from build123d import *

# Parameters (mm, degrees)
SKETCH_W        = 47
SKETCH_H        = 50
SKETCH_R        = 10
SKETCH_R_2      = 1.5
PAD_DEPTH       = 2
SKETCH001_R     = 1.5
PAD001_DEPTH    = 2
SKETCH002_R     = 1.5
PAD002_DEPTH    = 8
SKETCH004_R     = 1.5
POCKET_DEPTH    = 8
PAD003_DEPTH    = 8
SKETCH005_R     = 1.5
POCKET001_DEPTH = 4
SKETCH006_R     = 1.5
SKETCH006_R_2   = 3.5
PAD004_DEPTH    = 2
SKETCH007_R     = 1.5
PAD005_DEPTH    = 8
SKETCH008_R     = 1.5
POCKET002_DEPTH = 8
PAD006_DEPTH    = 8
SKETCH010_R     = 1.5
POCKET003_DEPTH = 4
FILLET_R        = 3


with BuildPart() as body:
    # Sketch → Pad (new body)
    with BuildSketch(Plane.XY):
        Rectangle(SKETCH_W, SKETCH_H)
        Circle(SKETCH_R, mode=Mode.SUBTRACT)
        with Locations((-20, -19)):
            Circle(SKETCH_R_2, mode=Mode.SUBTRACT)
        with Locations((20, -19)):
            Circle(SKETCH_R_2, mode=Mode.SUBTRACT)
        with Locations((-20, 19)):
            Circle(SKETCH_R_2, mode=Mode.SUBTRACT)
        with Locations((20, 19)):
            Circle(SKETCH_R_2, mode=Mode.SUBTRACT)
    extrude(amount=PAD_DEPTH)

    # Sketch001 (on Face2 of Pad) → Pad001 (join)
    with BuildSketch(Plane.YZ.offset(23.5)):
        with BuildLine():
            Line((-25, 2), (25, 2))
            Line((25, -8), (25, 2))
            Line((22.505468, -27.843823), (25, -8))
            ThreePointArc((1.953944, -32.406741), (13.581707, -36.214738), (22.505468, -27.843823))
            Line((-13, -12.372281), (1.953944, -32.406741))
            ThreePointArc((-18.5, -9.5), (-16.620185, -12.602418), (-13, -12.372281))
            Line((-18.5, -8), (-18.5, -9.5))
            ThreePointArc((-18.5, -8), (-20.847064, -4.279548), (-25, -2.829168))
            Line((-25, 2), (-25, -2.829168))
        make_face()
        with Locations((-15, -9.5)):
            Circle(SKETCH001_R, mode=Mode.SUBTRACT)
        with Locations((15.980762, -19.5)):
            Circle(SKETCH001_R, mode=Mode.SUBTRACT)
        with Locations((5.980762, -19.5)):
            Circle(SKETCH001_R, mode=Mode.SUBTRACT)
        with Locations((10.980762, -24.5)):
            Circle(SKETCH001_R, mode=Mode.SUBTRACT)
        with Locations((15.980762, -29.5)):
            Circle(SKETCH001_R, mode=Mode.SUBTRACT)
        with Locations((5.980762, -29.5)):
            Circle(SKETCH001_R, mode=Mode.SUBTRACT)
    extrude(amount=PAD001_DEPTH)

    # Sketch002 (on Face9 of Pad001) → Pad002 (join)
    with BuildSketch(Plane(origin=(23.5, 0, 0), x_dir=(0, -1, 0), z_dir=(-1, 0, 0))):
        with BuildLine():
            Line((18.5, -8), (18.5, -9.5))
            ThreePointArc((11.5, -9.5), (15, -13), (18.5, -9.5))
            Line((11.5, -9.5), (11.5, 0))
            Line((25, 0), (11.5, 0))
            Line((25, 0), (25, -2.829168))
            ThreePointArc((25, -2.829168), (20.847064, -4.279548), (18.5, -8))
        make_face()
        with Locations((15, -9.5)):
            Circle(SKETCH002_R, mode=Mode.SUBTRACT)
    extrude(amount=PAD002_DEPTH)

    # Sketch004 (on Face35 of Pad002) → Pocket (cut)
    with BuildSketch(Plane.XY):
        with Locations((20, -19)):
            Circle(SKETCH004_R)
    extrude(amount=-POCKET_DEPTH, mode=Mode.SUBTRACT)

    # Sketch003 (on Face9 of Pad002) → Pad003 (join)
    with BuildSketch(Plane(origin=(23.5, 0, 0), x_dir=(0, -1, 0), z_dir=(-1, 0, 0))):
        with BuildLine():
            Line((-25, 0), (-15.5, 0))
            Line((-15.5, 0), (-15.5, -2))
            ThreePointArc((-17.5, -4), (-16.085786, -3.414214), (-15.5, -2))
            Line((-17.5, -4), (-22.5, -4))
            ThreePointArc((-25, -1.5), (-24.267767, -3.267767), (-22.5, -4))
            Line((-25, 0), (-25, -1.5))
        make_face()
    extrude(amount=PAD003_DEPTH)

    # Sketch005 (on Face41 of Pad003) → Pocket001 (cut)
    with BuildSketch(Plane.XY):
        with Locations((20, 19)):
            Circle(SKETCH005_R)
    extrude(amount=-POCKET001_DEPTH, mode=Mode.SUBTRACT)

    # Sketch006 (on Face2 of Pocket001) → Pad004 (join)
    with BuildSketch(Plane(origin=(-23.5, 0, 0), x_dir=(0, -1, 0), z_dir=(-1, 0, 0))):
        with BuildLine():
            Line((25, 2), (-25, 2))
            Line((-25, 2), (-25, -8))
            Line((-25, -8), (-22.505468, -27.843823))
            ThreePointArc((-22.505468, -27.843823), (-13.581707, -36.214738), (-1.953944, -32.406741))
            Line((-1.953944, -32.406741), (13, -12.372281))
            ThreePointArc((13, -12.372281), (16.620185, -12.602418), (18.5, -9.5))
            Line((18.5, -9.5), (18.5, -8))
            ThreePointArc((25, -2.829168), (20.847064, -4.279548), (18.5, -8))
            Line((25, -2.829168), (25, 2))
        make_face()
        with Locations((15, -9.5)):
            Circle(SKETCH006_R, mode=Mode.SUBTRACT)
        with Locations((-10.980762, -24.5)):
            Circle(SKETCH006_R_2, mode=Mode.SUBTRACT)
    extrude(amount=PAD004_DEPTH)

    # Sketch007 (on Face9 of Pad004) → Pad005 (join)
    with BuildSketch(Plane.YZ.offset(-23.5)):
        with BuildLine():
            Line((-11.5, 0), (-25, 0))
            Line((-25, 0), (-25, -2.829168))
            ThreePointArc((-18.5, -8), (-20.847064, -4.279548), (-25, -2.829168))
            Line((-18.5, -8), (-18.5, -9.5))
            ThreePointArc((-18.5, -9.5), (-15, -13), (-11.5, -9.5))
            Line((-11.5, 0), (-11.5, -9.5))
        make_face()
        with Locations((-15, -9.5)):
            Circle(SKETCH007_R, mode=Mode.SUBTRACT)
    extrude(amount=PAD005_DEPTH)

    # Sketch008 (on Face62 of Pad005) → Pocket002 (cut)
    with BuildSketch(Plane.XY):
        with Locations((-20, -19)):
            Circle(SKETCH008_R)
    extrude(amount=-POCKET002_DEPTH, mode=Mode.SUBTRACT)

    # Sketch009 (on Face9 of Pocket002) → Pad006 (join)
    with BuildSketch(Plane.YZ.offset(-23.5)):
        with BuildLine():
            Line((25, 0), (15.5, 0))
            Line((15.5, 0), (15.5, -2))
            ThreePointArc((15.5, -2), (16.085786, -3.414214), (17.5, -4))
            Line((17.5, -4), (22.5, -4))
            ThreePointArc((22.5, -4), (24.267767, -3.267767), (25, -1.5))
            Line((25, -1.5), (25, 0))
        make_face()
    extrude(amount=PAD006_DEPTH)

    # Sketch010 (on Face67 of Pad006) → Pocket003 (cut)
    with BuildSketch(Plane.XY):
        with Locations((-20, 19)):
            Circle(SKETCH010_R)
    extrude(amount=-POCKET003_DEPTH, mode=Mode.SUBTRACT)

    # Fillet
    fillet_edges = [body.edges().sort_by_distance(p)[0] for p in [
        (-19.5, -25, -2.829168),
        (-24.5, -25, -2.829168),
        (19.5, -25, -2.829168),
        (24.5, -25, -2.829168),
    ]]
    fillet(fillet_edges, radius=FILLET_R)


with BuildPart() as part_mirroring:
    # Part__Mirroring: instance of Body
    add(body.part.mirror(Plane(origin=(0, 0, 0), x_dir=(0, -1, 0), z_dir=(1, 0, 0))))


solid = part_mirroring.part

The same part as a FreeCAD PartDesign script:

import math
import FreeCAD as App
import Part
import Sketcher
from FreeCAD import Vector
Q = App.Units.Quantity


def edges_at(feature, points):
    """Names of the edges that pass closest to the given points."""
    edges = feature.Shape.Edges
    near = lambda p: min(range(len(edges)), key=lambda i: edges[i].distToShape(Part.Vertex(*p))[0])
    return sorted({f"Edge{near(p) + 1}" for p in points})

doc = App.newDocument("Part")
params = doc.addObject("Spreadsheet::Sheet", "Params")
for row, (alias, value) in enumerate([
    ("sketch1_diameter", "3 mm"),
    ("sketch1_diameter2", "20 mm"),
    ("sketch1_width", "47 mm"),
    ("sketch1_height", "50 mm"),
    ("pad1_length", "2 mm"),
    ("sketch2_diameter", "3 mm"),
    ("sketch2_radius", "12 mm"),
    ("sketch2_radius2", "3.5 mm"),
    ("sketch2_width", "50 mm"),
    ("sketch2_height", "10 mm"),
    ("pad2_length", "2 mm"),
    ("sketch3_diameter", "3 mm"),
    ("sketch3_radius", "3.5 mm"),
    ("sketch3_width", "13.5 mm"),
    ("sketch3_height", "1.5 mm"),
    ("sketch3_height2", "9.5 mm"),
    ("pad3_length", "8 mm"),
    ("sketch4_diameter", "3 mm"),
    ("pocket1_length", "8 mm"),
    ("sketch5_radius", "1.999999 mm"),
    ("sketch5_radius2", "2.5 mm"),
    ("sketch5_width", "5 mm"),
    ("sketch5_height", "2 mm"),
    ("pad4_length", "8 mm"),
    ("sketch6_diameter", "3 mm"),
    ("pocket2_length", "4 mm"),
    ("sketch7_diameter", "7 mm"),
    ("sketch7_diameter2", "3 mm"),
    ("sketch7_radius", "12 mm"),
    ("sketch7_width", "50 mm"),
    ("sketch7_height", "10 mm"),
    ("pad5_length", "2 mm"),
    ("sketch8_diameter", "3 mm"),
    ("sketch8_radius", "3.5 mm"),
    ("sketch8_width", "13.5 mm"),
    ("sketch8_height", "1.5 mm"),
    ("sketch8_height2", "9.5 mm"),
    ("pad6_length", "8 mm"),
    ("sketch9_diameter", "3 mm"),
    ("pocket3_length", "8 mm"),
    ("sketch10_radius", "1.999999 mm"),
    ("sketch10_radius2", "2.5 mm"),
    ("sketch10_width", "5 mm"),
    ("sketch10_height", "2 mm"),
    ("pad7_length", "8 mm"),
    ("sketch11_diameter", "3 mm"),
    ("pocket4_length", "4 mm"),
    ("fillet_radius", "3 mm"),
], start=1):
    params.set(f"A{row}", alias)
    params.set(f"B{row}", "=" + value)
    params.setAlias(f"B{row}", alias)

body = doc.addObject("PartDesign::Body", "Body")

sketch1 = body.newObject("Sketcher::SketchObject", "Sketch")
sketch1.AttachmentSupport = (doc.getObject("XY_Plane"), [""])
sketch1.MapMode = "FlatFace"
sketch1.addGeometry(Part.LineSegment(Vector(-23.5, 25, 0), Vector(-23.5, -25, 0)), False)
sketch1.addGeometry(Part.LineSegment(Vector(-23.5, -25, 0), Vector(23.5, -25, 0)), False)
sketch1.addGeometry(Part.LineSegment(Vector(23.5, -25, 0), Vector(23.5, 25, 0)), False)
sketch1.addGeometry(Part.LineSegment(Vector(23.5, 25, 0), Vector(-23.5, 25, 0)), False)
sketch1.addGeometry(Part.Circle(Vector(-20, -19, 0), Vector(0, 0, 1), 1.5), False)
sketch1.addGeometry(Part.Circle(Vector(20, -19, 0), Vector(0, 0, 1), 1.5), False)
sketch1.addGeometry(Part.Circle(Vector(-20, 19, 0), Vector(0, 0, 1), 1.5), False)
sketch1.addGeometry(Part.Circle(Vector(0, 0, 0), Vector(0, 0, 1), 10), False)
sketch1.addGeometry(Part.Circle(Vector(20, 19, 0), Vector(0, 0, 1), 1.5), False)
sketch1.addConstraint(Sketcher.Constraint("Coincident", 0, 2, 1, 1))
sketch1.addConstraint(Sketcher.Constraint("Coincident", 1, 2, 2, 1))
sketch1.addConstraint(Sketcher.Constraint("Coincident", 2, 2, 3, 1))
sketch1.addConstraint(Sketcher.Constraint("Coincident", 3, 2, 0, 1))
sketch1.addConstraint(Sketcher.Constraint("Vertical", 0))
sketch1.addConstraint(Sketcher.Constraint("Horizontal", 1))
sketch1.addConstraint(Sketcher.Constraint("Vertical", 2))
sketch1.addConstraint(Sketcher.Constraint("Horizontal", 3))
sketch1.addConstraint(Sketcher.Constraint("Coincident", 7, 3, -1, 1))
sketch1.addConstraint(Sketcher.Constraint("Equal", 4, 5))
sketch1.addConstraint(Sketcher.Constraint("Equal", 5, 6))
sketch1.addConstraint(Sketcher.Constraint("Equal", 6, 8))
sketch1.addConstraint(Sketcher.Constraint("Symmetric", 5, 3, 6, 3, -1, 1))
sketch1.addConstraint(Sketcher.Constraint("Symmetric", 4, 3, 8, 3, -1, 1))
sketch1.addConstraint(Sketcher.Constraint("Symmetric", 0, 2, 2, 2, -1, 1))
sketch1.addConstraint(Sketcher.Constraint("Symmetric", 4, 3, 5, 3, -2))
sketch1.addConstraint(Sketcher.Constraint("Diameter", 4, Q("3 mm")))
sketch1.addConstraint(Sketcher.Constraint("Diameter", 7, Q("20 mm")))
sketch1.addConstraint(Sketcher.Constraint("DistanceX", 1, 1, 1, 2, Q("47 mm")))
sketch1.addConstraint(Sketcher.Constraint("DistanceY", 0, 2, 0, 1, Q("50 mm")))
sketch1.addConstraint(Sketcher.Constraint("DistanceX", 4, 3, -1, 1, Q("20 mm")))
sketch1.addConstraint(Sketcher.Constraint("DistanceY", 4, 3, -1, 1, Q("19 mm")))
sketch1.setExpression("Constraints[16]", "Params.sketch1_diameter")
sketch1.setExpression("Constraints[17]", "Params.sketch1_diameter2")
sketch1.setExpression("Constraints[18]", "Params.sketch1_width")
sketch1.setExpression("Constraints[19]", "Params.sketch1_height")
pad1 = body.newObject("PartDesign::Pad", "Pad")
pad1.Profile = sketch1
pad1.setExpression("Length", "Params.pad1_length")

sketch2 = body.newObject("Sketcher::SketchObject", "Sketch001")
sketch2.AttachmentSupport = (doc.getObject("YZ_Plane"), [""])
sketch2.MapMode = "FlatFace"
sketch2.AttachmentOffset = App.Placement(Vector(0, 0, 23.5), App.Rotation())
sketch2.addGeometry(Part.LineSegment(Vector(25, 2, 0), Vector(-25, 2, 0)), False)
sketch2.addGeometry(Part.LineSegment(Vector(-25, 2, 0), Vector(-25, -2.829168, 0)), False)
sketch2.addGeometry(Part.ArcOfCircle(Part.Circle(Vector(-25.000001, -9.500001, 0), Vector(0, 0, 1), 6.670833), math.radians(12.994623), math.radians(89.999994)), False)
sketch2.addGeometry(Part.LineSegment(Vector(-18.5, -8, 0), Vector(-18.5, -9.5, 0)), False)
sketch2.addGeometry(Part.ArcOfCircle(Part.Circle(Vector(-15, -9.499999, 0), Vector(0, 0, 1), 3.5), math.radians(-179.99999), math.radians(-55.1501)), False)
sketch2.addGeometry(Part.LineSegment(Vector(-13, -12.372281, 0), Vector(1.953944, -32.406741, 0)), False)
sketch2.addGeometry(Part.ArcOfCircle(Part.Circle(Vector(10.980762, -24.5, 0), Vector(0, 0, 1), 12), math.radians(-138.784341), math.radians(-16.179763)), False)
sketch2.addGeometry(Part.LineSegment(Vector(22.505468, -27.843823, 0), Vector(25, -8, 0)), False)
sketch2.addGeometry(Part.LineSegment(Vector(25, -8, 0), Vector(25, 2, 0)), False)
sketch2.addGeometry(Part.Circle(Vector(15.980762, -29.5, 0), Vector(0, 0, 1), 1.5), False)
sketch2.addGeometry(Part.Circle(Vector(5.980762, -29.5, 0), Vector(0, 0, 1), 1.5), False)
sketch2.addGeometry(Part.Circle(Vector(10.980762, -24.5, 0), Vector(0, 0, 1), 1.5), False)
sketch2.addGeometry(Part.Circle(Vector(15.980762, -19.5, 0), Vector(0, 0, 1), 1.5), False)
sketch2.addGeometry(Part.Circle(Vector(5.980762, -19.5, 0), Vector(0, 0, 1), 1.5), False)
sketch2.addGeometry(Part.Circle(Vector(-15, -9.5, 0), Vector(0, 0, 1), 1.5), False)
sketch2.addConstraint(Sketcher.Constraint("Coincident", 0, 2, 1, 1))
sketch2.addConstraint(Sketcher.Constraint("Coincident", 1, 2, 2, 2))
sketch2.addConstraint(Sketcher.Constraint("Coincident", 2, 1, 3, 1))
sketch2.addConstraint(Sketcher.Constraint("Tangent", 3, 2, 4, 1))
sketch2.addConstraint(Sketcher.Constraint("Coincident", 4, 2, 5, 1))
sketch2.addConstraint(Sketcher.Constraint("Coincident", 5, 2, 6, 1))
sketch2.addConstraint(Sketcher.Constraint("Coincident", 6, 2, 7, 1))
sketch2.addConstraint(Sketcher.Constraint("Coincident", 7, 2, 8, 1))
sketch2.addConstraint(Sketcher.Constraint("Coincident", 8, 2, 0, 1))
sketch2.addConstraint(Sketcher.Constraint("Horizontal", 0))
sketch2.addConstraint(Sketcher.Constraint("Vertical", 1))
sketch2.addConstraint(Sketcher.Constraint("Vertical", 3))
sketch2.addConstraint(Sketcher.Constraint("Vertical", 8))
sketch2.addConstraint(Sketcher.Constraint("Coincident", 11, 3, 6, 3))
sketch2.addConstraint(Sketcher.Constraint("Coincident", 14, 3, 4, 3))
sketch2.addConstraint(Sketcher.Constraint("Equal", 9, 10))
sketch2.addConstraint(Sketcher.Constraint("Equal", 10, 11))
sketch2.addConstraint(Sketcher.Constraint("Equal", 11, 12))
sketch2.addConstraint(Sketcher.Constraint("Equal", 12, 13))
sketch2.addConstraint(Sketcher.Constraint("Equal", 13, 14))
sketch2.addConstraint(Sketcher.Constraint("Horizontal", 2, 3, 4, 3))
sketch2.addConstraint(Sketcher.Constraint("Horizontal", 9, 3, 10, 3))
sketch2.addConstraint(Sketcher.Constraint("Horizontal", 12, 3, 13, 3))
sketch2.addConstraint(Sketcher.Constraint("Horizontal", 2, 1, 7, 2))
sketch2.addConstraint(Sketcher.Constraint("Vertical", 9, 3, 12, 3))
sketch2.addConstraint(Sketcher.Constraint("Vertical", 10, 3, 13, 3))
sketch2.addConstraint(Sketcher.Constraint("Vertical", 2, 3, 0, 2))
sketch2.addConstraint(Sketcher.Constraint("Diameter", 9, Q("3 mm")))
sketch2.addConstraint(Sketcher.Constraint("Radius", 6, Q("12 mm")))
sketch2.addConstraint(Sketcher.Constraint("Radius", 4, Q("3.5 mm")))
sketch2.addConstraint(Sketcher.Constraint("DistanceX", 0, 2, 0, 1, Q("50 mm")))
sketch2.addConstraint(Sketcher.Constraint("DistanceY", 8, 1, 8, 2, Q("10 mm")))
sketch2.addConstraint(Sketcher.Constraint("Distance", 5, Q("25.000001 mm")))
sketch2.addConstraint(Sketcher.Constraint("Distance", 7, Q("20 mm")))
sketch2.addConstraint(Sketcher.Constraint("DistanceY", 3, 2, 3, 1, Q("1.5 mm")))
sketch2.addConstraint(Sketcher.Constraint("DistanceX", 2, 3, -1, 1, Q("25.000001 mm")))
sketch2.addConstraint(Sketcher.Constraint("DistanceX", 4, 3, -1, 1, Q("15 mm")))
sketch2.addConstraint(Sketcher.Constraint("DistanceY", -1, 1, 0, 2, Q("2 mm")))
sketch2.addConstraint(Sketcher.Constraint("DistanceX", 4, 2, -1, 1, Q("13 mm")))
sketch2.addConstraint(Sketcher.Constraint("DistanceY", 6, 3, 4, 3, Q("15.000001 mm")))
sketch2.addConstraint(Sketcher.Constraint("DistanceX", 6, 3, 9, 3, Q("5 mm")))
sketch2.addConstraint(Sketcher.Constraint("DistanceY", 9, 3, 6, 3, Q("5 mm")))
sketch2.addConstraint(Sketcher.Constraint("DistanceX", 10, 3, 6, 3, Q("5 mm")))
sketch2.addConstraint(Sketcher.Constraint("DistanceY", 11, 3, 12, 3, Q("5 mm")))
sketch2.addConstraint(Sketcher.Constraint("DistanceY", 5, 2, -1, 1, Q("32.406741 mm")))
sketch2.setExpression("Constraints[27]", "Params.sketch2_diameter")
sketch2.setExpression("Constraints[28]", "Params.sketch2_radius")
sketch2.setExpression("Constraints[29]", "Params.sketch2_radius2")
sketch2.setExpression("Constraints[30]", "Params.sketch2_width")
sketch2.setExpression("Constraints[31]", "Params.sketch2_height")
pad2 = body.newObject("PartDesign::Pad", "Pad001")
pad2.Profile = sketch2
pad2.setExpression("Length", "Params.pad2_length")

sketch3 = body.newObject("Sketcher::SketchObject", "Sketch002")
sketch3.AttachmentSupport = (doc.getObject("YZ_Plane"), [""])
sketch3.MapMode = "FlatFace"
sketch3.AttachmentOffset = App.Placement(Vector(0, 0, 23.5), App.Rotation())
sketch3.addGeometry(Part.LineSegment(Vector(-18.5, -9.5, 0), Vector(-18.5, -8, 0)), False)
sketch3.addGeometry(Part.ArcOfCircle(Part.Circle(Vector(-25.000001, -9.500001, 0), Vector(0, 0, 1), 6.670833), math.radians(12.994623), math.radians(89.999994)), False)
sketch3.addGeometry(Part.LineSegment(Vector(-25, -2.829168, 0), Vector(-25, 0, 0)), False)
sketch3.addGeometry(Part.LineSegment(Vector(-25, 0, 0), Vector(-11.5, 0, 0)), False)
sketch3.addGeometry(Part.LineSegment(Vector(-11.5, 0, 0), Vector(-11.5, -9.5, 0)), False)
sketch3.addGeometry(Part.ArcOfCircle(Part.Circle(Vector(-15, -9.5, 0), Vector(0, 0, 1), 3.5), math.radians(180), math.radians(360)), False)
sketch3.addGeometry(Part.Circle(Vector(-15, -9.5, 0), Vector(0, 0, 1), 1.5), False)
sketch3.addConstraint(Sketcher.Constraint("Coincident", 0, 2, 1, 1))
sketch3.addConstraint(Sketcher.Constraint("Coincident", 1, 2, 2, 1))
sketch3.addConstraint(Sketcher.Constraint("Coincident", 2, 2, 3, 1))
sketch3.addConstraint(Sketcher.Constraint("Coincident", 3, 2, 4, 1))
sketch3.addConstraint(Sketcher.Constraint("Tangent", 4, 2, 5, 2))
sketch3.addConstraint(Sketcher.Constraint("Tangent", 5, 1, 0, 1))
sketch3.addConstraint(Sketcher.Constraint("Vertical", 0))
sketch3.addConstraint(Sketcher.Constraint("Vertical", 2))
sketch3.addConstraint(Sketcher.Constraint("Horizontal", 3))
sketch3.addConstraint(Sketcher.Constraint("Vertical", 4))
sketch3.addConstraint(Sketcher.Constraint("Coincident", 6, 3, 5, 3))
sketch3.addConstraint(Sketcher.Constraint("PointOnObject", 2, 2, -1))
sketch3.addConstraint(Sketcher.Constraint("Horizontal", 1, 3, 5, 3))
sketch3.addConstraint(Sketcher.Constraint("Diameter", 6, Q("3 mm")))
sketch3.addConstraint(Sketcher.Constraint("Radius", 5, Q("3.5 mm")))
sketch3.addConstraint(Sketcher.Constraint("DistanceX", 3, 1, 3, 2, Q("13.5 mm")))
sketch3.addConstraint(Sketcher.Constraint("DistanceY", 0, 1, 0, 2, Q("1.5 mm")))
sketch3.addConstraint(Sketcher.Constraint("DistanceY", 4, 2, 4, 1, Q("9.5 mm")))
sketch3.addConstraint(Sketcher.Constraint("DistanceX", 1, 3, -1, 1, Q("25.000001 mm")))
sketch3.addConstraint(Sketcher.Constraint("DistanceX", 5, 3, -1, 1, Q("15 mm")))
sketch3.setExpression("Constraints[13]", "Params.sketch3_diameter")
sketch3.setExpression("Constraints[14]", "Params.sketch3_radius")
sketch3.setExpression("Constraints[15]", "Params.sketch3_width")
sketch3.setExpression("Constraints[16]", "Params.sketch3_height")
sketch3.setExpression("Constraints[17]", "Params.sketch3_height2")
pad3 = body.newObject("PartDesign::Pad", "Pad002")
pad3.Profile = sketch3
pad3.setExpression("Length", "Params.pad3_length")
pad3.Reversed = True

sketch4 = body.newObject("Sketcher::SketchObject", "Sketch003")
sketch4.AttachmentSupport = (doc.getObject("XY_Plane"), [""])
sketch4.MapMode = "FlatFace"
sketch4.addGeometry(Part.Circle(Vector(20, -19, 0), Vector(0, 0, 1), 1.5), False)
sketch4.addConstraint(Sketcher.Constraint("Diameter", 0, Q("3 mm")))
sketch4.addConstraint(Sketcher.Constraint("DistanceX", -1, 1, 0, 3, Q("20 mm")))
sketch4.addConstraint(Sketcher.Constraint("DistanceY", 0, 3, -1, 1, Q("19 mm")))
sketch4.setExpression("Constraints[0]", "Params.sketch4_diameter")
pocket1 = body.newObject("PartDesign::Pocket", "Pocket")
pocket1.Profile = sketch4
pocket1.setExpression("Length", "Params.pocket1_length")

sketch5 = body.newObject("Sketcher::SketchObject", "Sketch004")
sketch5.AttachmentSupport = (doc.getObject("YZ_Plane"), [""])
sketch5.MapMode = "FlatFace"
sketch5.AttachmentOffset = App.Placement(Vector(0, 0, 23.5), App.Rotation())
sketch5.addGeometry(Part.LineSegment(Vector(15.5, 0, 0), Vector(25, 0, 0)), False)
sketch5.addGeometry(Part.LineSegment(Vector(25, 0, 0), Vector(25, -1.5, 0)), False)
sketch5.addGeometry(Part.ArcOfCircle(Part.Circle(Vector(22.5, -1.5, 0), Vector(0, 0, 1), 2.5), math.radians(-90.000004), math.radians(0.000004)), False)
sketch5.addGeometry(Part.LineSegment(Vector(22.5, -4, 0), Vector(17.5, -4, 0)), False)
sketch5.addGeometry(Part.ArcOfCircle(Part.Circle(Vector(17.499999, -2.000001, 0), Vector(0, 0, 1), 1.999999), math.radians(179.999957), math.radians(270.000043)), False)
sketch5.addGeometry(Part.LineSegment(Vector(15.5, -2, 0), Vector(15.5, 0, 0)), False)
sketch5.addConstraint(Sketcher.Constraint("Coincident", 0, 2, 1, 1))
sketch5.addConstraint(Sketcher.Constraint("Tangent", 1, 2, 2, 2))
sketch5.addConstraint(Sketcher.Constraint("Tangent", 2, 1, 3, 1))
sketch5.addConstraint(Sketcher.Constraint("Tangent", 3, 2, 4, 2))
sketch5.addConstraint(Sketcher.Constraint("Tangent", 4, 1, 5, 1))
sketch5.addConstraint(Sketcher.Constraint("Coincident", 5, 2, 0, 1))
sketch5.addConstraint(Sketcher.Constraint("Horizontal", 0))
sketch5.addConstraint(Sketcher.Constraint("Vertical", 1))
sketch5.addConstraint(Sketcher.Constraint("Horizontal", 3))
sketch5.addConstraint(Sketcher.Constraint("Vertical", 5))
sketch5.addConstraint(Sketcher.Constraint("PointOnObject", 0, 2, -1))
sketch5.addConstraint(Sketcher.Constraint("Radius", 4, Q("1.999999 mm")))
sketch5.addConstraint(Sketcher.Constraint("Radius", 2, Q("2.5 mm")))
sketch5.addConstraint(Sketcher.Constraint("DistanceX", 3, 2, 3, 1, Q("5 mm")))
sketch5.addConstraint(Sketcher.Constraint("DistanceY", 5, 1, 5, 2, Q("2 mm")))
sketch5.addConstraint(Sketcher.Constraint("DistanceX", -1, 1, 0, 2, Q("25 mm")))
sketch5.setExpression("Constraints[11]", "Params.sketch5_radius")
sketch5.setExpression("Constraints[12]", "Params.sketch5_radius2")
sketch5.setExpression("Constraints[13]", "Params.sketch5_width")
sketch5.setExpression("Constraints[14]", "Params.sketch5_height")
pad4 = body.newObject("PartDesign::Pad", "Pad003")
pad4.Profile = sketch5
pad4.setExpression("Length", "Params.pad4_length")
pad4.Reversed = True

sketch6 = body.newObject("Sketcher::SketchObject", "Sketch005")
sketch6.AttachmentSupport = (doc.getObject("XY_Plane"), [""])
sketch6.MapMode = "FlatFace"
sketch6.addGeometry(Part.Circle(Vector(20, 19, 0), Vector(0, 0, 1), 1.5), False)
sketch6.addConstraint(Sketcher.Constraint("Diameter", 0, Q("3 mm")))
sketch6.addConstraint(Sketcher.Constraint("DistanceX", -1, 1, 0, 3, Q("20 mm")))
sketch6.addConstraint(Sketcher.Constraint("DistanceY", -1, 1, 0, 3, Q("19 mm")))
sketch6.setExpression("Constraints[0]", "Params.sketch6_diameter")
pocket2 = body.newObject("PartDesign::Pocket", "Pocket001")
pocket2.Profile = sketch6
pocket2.setExpression("Length", "Params.pocket2_length")

sketch7 = body.newObject("Sketcher::SketchObject", "Sketch006")
sketch7.AttachmentSupport = (doc.getObject("YZ_Plane"), [""])
sketch7.MapMode = "FlatFace"
sketch7.AttachmentOffset = App.Placement(Vector(0, 0, -23.5), App.Rotation())
sketch7.addGeometry(Part.LineSegment(Vector(-25, 2, 0), Vector(25, 2, 0)), False)
sketch7.addGeometry(Part.LineSegment(Vector(25, 2, 0), Vector(25, -8, 0)), False)
sketch7.addGeometry(Part.LineSegment(Vector(25, -8, 0), Vector(22.505468, -27.843823, 0)), False)
sketch7.addGeometry(Part.ArcOfCircle(Part.Circle(Vector(10.980762, -24.5, 0), Vector(0, 0, 1), 12), math.radians(-138.784341), math.radians(-16.179763)), False)
sketch7.addGeometry(Part.LineSegment(Vector(1.953944, -32.406741, 0), Vector(-13, -12.372281, 0)), False)
sketch7.addGeometry(Part.ArcOfCircle(Part.Circle(Vector(-15, -9.499999, 0), Vector(0, 0, 1), 3.5), math.radians(-179.99999), math.radians(-55.1501)), False)
sketch7.addGeometry(Part.LineSegment(Vector(-18.5, -9.5, 0), Vector(-18.5, -8, 0)), False)
sketch7.addGeometry(Part.ArcOfCircle(Part.Circle(Vector(-25.000001, -9.500001, 0), Vector(0, 0, 1), 6.670833), math.radians(12.994623), math.radians(89.999994)), False)
sketch7.addGeometry(Part.LineSegment(Vector(-25, -2.829168, 0), Vector(-25, 2, 0)), False)
sketch7.addGeometry(Part.Circle(Vector(10.980762, -24.5, 0), Vector(0, 0, 1), 3.5), False)
sketch7.addGeometry(Part.Circle(Vector(-15, -9.5, 0), Vector(0, 0, 1), 1.5), False)
sketch7.addConstraint(Sketcher.Constraint("Coincident", 0, 2, 1, 1))
sketch7.addConstraint(Sketcher.Constraint("Coincident", 1, 2, 2, 1))
sketch7.addConstraint(Sketcher.Constraint("Coincident", 2, 2, 3, 2))
sketch7.addConstraint(Sketcher.Constraint("Coincident", 3, 1, 4, 1))
sketch7.addConstraint(Sketcher.Constraint("Coincident", 4, 2, 5, 2))
sketch7.addConstraint(Sketcher.Constraint("Tangent", 5, 1, 6, 1))
sketch7.addConstraint(Sketcher.Constraint("Coincident", 6, 2, 7, 1))
sketch7.addConstraint(Sketcher.Constraint("Coincident", 7, 2, 8, 1))
sketch7.addConstraint(Sketcher.Constraint("Coincident", 8, 2, 0, 1))
sketch7.addConstraint(Sketcher.Constraint("Horizontal", 0))
sketch7.addConstraint(Sketcher.Constraint("Vertical", 1))
sketch7.addConstraint(Sketcher.Constraint("Vertical", 6))
sketch7.addConstraint(Sketcher.Constraint("Vertical", 8))
sketch7.addConstraint(Sketcher.Constraint("Coincident", 9, 3, 3, 3))
sketch7.addConstraint(Sketcher.Constraint("Coincident", 10, 3, 5, 3))
sketch7.addConstraint(Sketcher.Constraint("Equal", 5, 9))
sketch7.addConstraint(Sketcher.Constraint("Horizontal", 5, 3, 7, 3))
sketch7.addConstraint(Sketcher.Constraint("Horizontal", 1, 2, 6, 2))
sketch7.addConstraint(Sketcher.Constraint("Diameter", 9, Q("7 mm")))
sketch7.addConstraint(Sketcher.Constraint("Diameter", 10, Q("3 mm")))
sketch7.addConstraint(Sketcher.Constraint("Radius", 3, Q("12 mm")))
sketch7.addConstraint(Sketcher.Constraint("DistanceX", 0, 1, 0, 2, Q("50 mm")))
sketch7.addConstraint(Sketcher.Constraint("DistanceY", 1, 2, 1, 1, Q("10 mm")))
sketch7.addConstraint(Sketcher.Constraint("Distance", 2, Q("20 mm")))
sketch7.addConstraint(Sketcher.Constraint("Distance", 4, Q("25.000001 mm")))
sketch7.addConstraint(Sketcher.Constraint("DistanceY", 6, 1, 6, 2, Q("1.5 mm")))
sketch7.addConstraint(Sketcher.Constraint("DistanceX", 5, 3, -1, 1, Q("15 mm")))
sketch7.addConstraint(Sketcher.Constraint("DistanceX", 7, 3, -1, 1, Q("25.000001 mm")))
sketch7.addConstraint(Sketcher.Constraint("DistanceX", -1, 1, 0, 2, Q("25 mm")))
sketch7.addConstraint(Sketcher.Constraint("DistanceY", -1, 1, 0, 2, Q("2 mm")))
sketch7.addConstraint(Sketcher.Constraint("DistanceX", 4, 2, -1, 1, Q("13 mm")))
sketch7.addConstraint(Sketcher.Constraint("DistanceY", 3, 3, 5, 3, Q("15.000001 mm")))
sketch7.addConstraint(Sketcher.Constraint("DistanceX", -1, 1, 2, 2, Q("22.505468 mm")))
sketch7.setExpression("Constraints[18]", "Params.sketch7_diameter")
sketch7.setExpression("Constraints[19]", "Params.sketch7_diameter2")
sketch7.setExpression("Constraints[20]", "Params.sketch7_radius")
sketch7.setExpression("Constraints[21]", "Params.sketch7_width")
sketch7.setExpression("Constraints[22]", "Params.sketch7_height")
pad5 = body.newObject("PartDesign::Pad", "Pad004")
pad5.Profile = sketch7
pad5.setExpression("Length", "Params.pad5_length")
pad5.Reversed = True

sketch8 = body.newObject("Sketcher::SketchObject", "Sketch007")
sketch8.AttachmentSupport = (doc.getObject("YZ_Plane"), [""])
sketch8.MapMode = "FlatFace"
sketch8.AttachmentOffset = App.Placement(Vector(0, 0, -23.5), App.Rotation())
sketch8.addGeometry(Part.LineSegment(Vector(-11.5, 0, 0), Vector(-25, 0, 0)), False)
sketch8.addGeometry(Part.LineSegment(Vector(-25, 0, 0), Vector(-25, -2.829168, 0)), False)
sketch8.addGeometry(Part.ArcOfCircle(Part.Circle(Vector(-25.000001, -9.500001, 0), Vector(0, 0, 1), 6.670833), math.radians(12.994623), math.radians(89.999994)), False)
sketch8.addGeometry(Part.LineSegment(Vector(-18.5, -8, 0), Vector(-18.5, -9.5, 0)), False)
sketch8.addGeometry(Part.ArcOfCircle(Part.Circle(Vector(-15, -9.5, 0), Vector(0, 0, 1), 3.5), math.radians(180), math.radians(360)), False)
sketch8.addGeometry(Part.LineSegment(Vector(-11.5, -9.5, 0), Vector(-11.5, 0, 0)), False)
sketch8.addGeometry(Part.Circle(Vector(-15, -9.5, 0), Vector(0, 0, 1), 1.5), False)
sketch8.addConstraint(Sketcher.Constraint("Coincident", 0, 2, 1, 1))
sketch8.addConstraint(Sketcher.Constraint("Coincident", 1, 2, 2, 2))
sketch8.addConstraint(Sketcher.Constraint("Coincident", 2, 1, 3, 1))
sketch8.addConstraint(Sketcher.Constraint("Tangent", 3, 2, 4, 1))
sketch8.addConstraint(Sketcher.Constraint("Tangent", 4, 2, 5, 1))
sketch8.addConstraint(Sketcher.Constraint("Coincident", 5, 2, 0, 1))
sketch8.addConstraint(Sketcher.Constraint("Horizontal", 0))
sketch8.addConstraint(Sketcher.Constraint("Vertical", 1))
sketch8.addConstraint(Sketcher.Constraint("Vertical", 3))
sketch8.addConstraint(Sketcher.Constraint("Vertical", 5))
sketch8.addConstraint(Sketcher.Constraint("Coincident", 6, 3, 4, 3))
sketch8.addConstraint(Sketcher.Constraint("PointOnObject", 0, 2, -1))
sketch8.addConstraint(Sketcher.Constraint("Horizontal", 2, 3, 4, 3))
sketch8.addConstraint(Sketcher.Constraint("Vertical", 2, 3, 0, 2))
sketch8.addConstraint(Sketcher.Constraint("Diameter", 6, Q("3 mm")))
sketch8.addConstraint(Sketcher.Constraint("Radius", 4, Q("3.5 mm")))
sketch8.addConstraint(Sketcher.Constraint("DistanceX", 0, 2, 0, 1, Q("13.5 mm")))
sketch8.addConstraint(Sketcher.Constraint("DistanceY", 3, 2, 3, 1, Q("1.5 mm")))
sketch8.addConstraint(Sketcher.Constraint("DistanceY", 5, 1, 5, 2, Q("9.5 mm")))
sketch8.addConstraint(Sketcher.Constraint("DistanceX", 2, 3, -1, 1, Q("25.000001 mm")))
sketch8.setExpression("Constraints[14]", "Params.sketch8_diameter")
sketch8.setExpression("Constraints[15]", "Params.sketch8_radius")
sketch8.setExpression("Constraints[16]", "Params.sketch8_width")
sketch8.setExpression("Constraints[17]", "Params.sketch8_height")
sketch8.setExpression("Constraints[18]", "Params.sketch8_height2")
pad6 = body.newObject("PartDesign::Pad", "Pad005")
pad6.Profile = sketch8
pad6.setExpression("Length", "Params.pad6_length")

sketch9 = body.newObject("Sketcher::SketchObject", "Sketch008")
sketch9.AttachmentSupport = (doc.getObject("XY_Plane"), [""])
sketch9.MapMode = "FlatFace"
sketch9.addGeometry(Part.Circle(Vector(-20, -19, 0), Vector(0, 0, 1), 1.5), False)
sketch9.addConstraint(Sketcher.Constraint("Diameter", 0, Q("3 mm")))
sketch9.addConstraint(Sketcher.Constraint("DistanceX", 0, 3, -1, 1, Q("20 mm")))
sketch9.addConstraint(Sketcher.Constraint("DistanceY", 0, 3, -1, 1, Q("19 mm")))
sketch9.setExpression("Constraints[0]", "Params.sketch9_diameter")
pocket3 = body.newObject("PartDesign::Pocket", "Pocket002")
pocket3.Profile = sketch9
pocket3.setExpression("Length", "Params.pocket3_length")

sketch10 = body.newObject("Sketcher::SketchObject", "Sketch009")
sketch10.AttachmentSupport = (doc.getObject("YZ_Plane"), [""])
sketch10.MapMode = "FlatFace"
sketch10.AttachmentOffset = App.Placement(Vector(0, 0, -23.5), App.Rotation())
sketch10.addGeometry(Part.LineSegment(Vector(25, 0, 0), Vector(15.5, 0, 0)), False)
sketch10.addGeometry(Part.LineSegment(Vector(15.5, 0, 0), Vector(15.5, -2, 0)), False)
sketch10.addGeometry(Part.ArcOfCircle(Part.Circle(Vector(17.499999, -2.000001, 0), Vector(0, 0, 1), 1.999999), math.radians(179.999957), math.radians(270.000043)), False)
sketch10.addGeometry(Part.LineSegment(Vector(17.5, -4, 0), Vector(22.5, -4, 0)), False)
sketch10.addGeometry(Part.ArcOfCircle(Part.Circle(Vector(22.5, -1.5, 0), Vector(0, 0, 1), 2.5), math.radians(-90.000004), math.radians(0.000004)), False)
sketch10.addGeometry(Part.LineSegment(Vector(25, -1.5, 0), Vector(25, 0, 0)), False)
sketch10.addConstraint(Sketcher.Constraint("Coincident", 0, 2, 1, 1))
sketch10.addConstraint(Sketcher.Constraint("Tangent", 1, 2, 2, 1))
sketch10.addConstraint(Sketcher.Constraint("Tangent", 2, 2, 3, 1))
sketch10.addConstraint(Sketcher.Constraint("Tangent", 3, 2, 4, 1))
sketch10.addConstraint(Sketcher.Constraint("Tangent", 4, 2, 5, 1))
sketch10.addConstraint(Sketcher.Constraint("Coincident", 5, 2, 0, 1))
sketch10.addConstraint(Sketcher.Constraint("Horizontal", 0))
sketch10.addConstraint(Sketcher.Constraint("Vertical", 1))
sketch10.addConstraint(Sketcher.Constraint("Horizontal", 3))
sketch10.addConstraint(Sketcher.Constraint("Vertical", 5))
sketch10.addConstraint(Sketcher.Constraint("PointOnObject", 0, 2, -1))
sketch10.addConstraint(Sketcher.Constraint("Radius", 2, Q("1.999999 mm")))
sketch10.addConstraint(Sketcher.Constraint("Radius", 4, Q("2.5 mm")))
sketch10.addConstraint(Sketcher.Constraint("DistanceX", 3, 1, 3, 2, Q("5 mm")))
sketch10.addConstraint(Sketcher.Constraint("DistanceY", 1, 2, 1, 1, Q("2 mm")))
sketch10.addConstraint(Sketcher.Constraint("DistanceX", -1, 1, 4, 2, Q("25 mm")))
sketch10.setExpression("Constraints[11]", "Params.sketch10_radius")
sketch10.setExpression("Constraints[12]", "Params.sketch10_radius2")
sketch10.setExpression("Constraints[13]", "Params.sketch10_width")
sketch10.setExpression("Constraints[14]", "Params.sketch10_height")
pad7 = body.newObject("PartDesign::Pad", "Pad006")
pad7.Profile = sketch10
pad7.setExpression("Length", "Params.pad7_length")

sketch11 = body.newObject("Sketcher::SketchObject", "Sketch010")
sketch11.AttachmentSupport = (doc.getObject("XY_Plane"), [""])
sketch11.MapMode = "FlatFace"
sketch11.addGeometry(Part.Circle(Vector(-20, 19, 0), Vector(0, 0, 1), 1.5), False)
sketch11.addConstraint(Sketcher.Constraint("Diameter", 0, Q("3 mm")))
sketch11.addConstraint(Sketcher.Constraint("DistanceX", 0, 3, -1, 1, Q("20 mm")))
sketch11.addConstraint(Sketcher.Constraint("DistanceY", -1, 1, 0, 3, Q("19 mm")))
sketch11.setExpression("Constraints[0]", "Params.sketch11_diameter")
pocket4 = body.newObject("PartDesign::Pocket", "Pocket003")
pocket4.Profile = sketch11
pocket4.setExpression("Length", "Params.pocket4_length")
doc.recompute()

fillet = body.newObject("PartDesign::Fillet", "Fillet")
fillet.Base = (pocket4, edges_at(pocket4, [
    (-19.5, -25, -2.829),
    (-24.5, -25, -2.829),
    (20.5, -25, -2.829),
    (20.5, -25, -2.829),
]))
fillet.setExpression("Radius", "Params.fillet_radius")
body2 = doc.addObject("PartDesign::Body", "Body001")
doc.recompute()

mirroring = doc.addObject("Part::Mirroring", "Mirroring")
mirroring.Source = body
mirroring.Base = Vector(0, 0, 0)
mirroring.Normal = Vector(1, 0, 0)
body2.BaseFeature = mirroring
doc.recompute()
body.Visibility = False
mirroring.Visibility = False

doc.recompute()
